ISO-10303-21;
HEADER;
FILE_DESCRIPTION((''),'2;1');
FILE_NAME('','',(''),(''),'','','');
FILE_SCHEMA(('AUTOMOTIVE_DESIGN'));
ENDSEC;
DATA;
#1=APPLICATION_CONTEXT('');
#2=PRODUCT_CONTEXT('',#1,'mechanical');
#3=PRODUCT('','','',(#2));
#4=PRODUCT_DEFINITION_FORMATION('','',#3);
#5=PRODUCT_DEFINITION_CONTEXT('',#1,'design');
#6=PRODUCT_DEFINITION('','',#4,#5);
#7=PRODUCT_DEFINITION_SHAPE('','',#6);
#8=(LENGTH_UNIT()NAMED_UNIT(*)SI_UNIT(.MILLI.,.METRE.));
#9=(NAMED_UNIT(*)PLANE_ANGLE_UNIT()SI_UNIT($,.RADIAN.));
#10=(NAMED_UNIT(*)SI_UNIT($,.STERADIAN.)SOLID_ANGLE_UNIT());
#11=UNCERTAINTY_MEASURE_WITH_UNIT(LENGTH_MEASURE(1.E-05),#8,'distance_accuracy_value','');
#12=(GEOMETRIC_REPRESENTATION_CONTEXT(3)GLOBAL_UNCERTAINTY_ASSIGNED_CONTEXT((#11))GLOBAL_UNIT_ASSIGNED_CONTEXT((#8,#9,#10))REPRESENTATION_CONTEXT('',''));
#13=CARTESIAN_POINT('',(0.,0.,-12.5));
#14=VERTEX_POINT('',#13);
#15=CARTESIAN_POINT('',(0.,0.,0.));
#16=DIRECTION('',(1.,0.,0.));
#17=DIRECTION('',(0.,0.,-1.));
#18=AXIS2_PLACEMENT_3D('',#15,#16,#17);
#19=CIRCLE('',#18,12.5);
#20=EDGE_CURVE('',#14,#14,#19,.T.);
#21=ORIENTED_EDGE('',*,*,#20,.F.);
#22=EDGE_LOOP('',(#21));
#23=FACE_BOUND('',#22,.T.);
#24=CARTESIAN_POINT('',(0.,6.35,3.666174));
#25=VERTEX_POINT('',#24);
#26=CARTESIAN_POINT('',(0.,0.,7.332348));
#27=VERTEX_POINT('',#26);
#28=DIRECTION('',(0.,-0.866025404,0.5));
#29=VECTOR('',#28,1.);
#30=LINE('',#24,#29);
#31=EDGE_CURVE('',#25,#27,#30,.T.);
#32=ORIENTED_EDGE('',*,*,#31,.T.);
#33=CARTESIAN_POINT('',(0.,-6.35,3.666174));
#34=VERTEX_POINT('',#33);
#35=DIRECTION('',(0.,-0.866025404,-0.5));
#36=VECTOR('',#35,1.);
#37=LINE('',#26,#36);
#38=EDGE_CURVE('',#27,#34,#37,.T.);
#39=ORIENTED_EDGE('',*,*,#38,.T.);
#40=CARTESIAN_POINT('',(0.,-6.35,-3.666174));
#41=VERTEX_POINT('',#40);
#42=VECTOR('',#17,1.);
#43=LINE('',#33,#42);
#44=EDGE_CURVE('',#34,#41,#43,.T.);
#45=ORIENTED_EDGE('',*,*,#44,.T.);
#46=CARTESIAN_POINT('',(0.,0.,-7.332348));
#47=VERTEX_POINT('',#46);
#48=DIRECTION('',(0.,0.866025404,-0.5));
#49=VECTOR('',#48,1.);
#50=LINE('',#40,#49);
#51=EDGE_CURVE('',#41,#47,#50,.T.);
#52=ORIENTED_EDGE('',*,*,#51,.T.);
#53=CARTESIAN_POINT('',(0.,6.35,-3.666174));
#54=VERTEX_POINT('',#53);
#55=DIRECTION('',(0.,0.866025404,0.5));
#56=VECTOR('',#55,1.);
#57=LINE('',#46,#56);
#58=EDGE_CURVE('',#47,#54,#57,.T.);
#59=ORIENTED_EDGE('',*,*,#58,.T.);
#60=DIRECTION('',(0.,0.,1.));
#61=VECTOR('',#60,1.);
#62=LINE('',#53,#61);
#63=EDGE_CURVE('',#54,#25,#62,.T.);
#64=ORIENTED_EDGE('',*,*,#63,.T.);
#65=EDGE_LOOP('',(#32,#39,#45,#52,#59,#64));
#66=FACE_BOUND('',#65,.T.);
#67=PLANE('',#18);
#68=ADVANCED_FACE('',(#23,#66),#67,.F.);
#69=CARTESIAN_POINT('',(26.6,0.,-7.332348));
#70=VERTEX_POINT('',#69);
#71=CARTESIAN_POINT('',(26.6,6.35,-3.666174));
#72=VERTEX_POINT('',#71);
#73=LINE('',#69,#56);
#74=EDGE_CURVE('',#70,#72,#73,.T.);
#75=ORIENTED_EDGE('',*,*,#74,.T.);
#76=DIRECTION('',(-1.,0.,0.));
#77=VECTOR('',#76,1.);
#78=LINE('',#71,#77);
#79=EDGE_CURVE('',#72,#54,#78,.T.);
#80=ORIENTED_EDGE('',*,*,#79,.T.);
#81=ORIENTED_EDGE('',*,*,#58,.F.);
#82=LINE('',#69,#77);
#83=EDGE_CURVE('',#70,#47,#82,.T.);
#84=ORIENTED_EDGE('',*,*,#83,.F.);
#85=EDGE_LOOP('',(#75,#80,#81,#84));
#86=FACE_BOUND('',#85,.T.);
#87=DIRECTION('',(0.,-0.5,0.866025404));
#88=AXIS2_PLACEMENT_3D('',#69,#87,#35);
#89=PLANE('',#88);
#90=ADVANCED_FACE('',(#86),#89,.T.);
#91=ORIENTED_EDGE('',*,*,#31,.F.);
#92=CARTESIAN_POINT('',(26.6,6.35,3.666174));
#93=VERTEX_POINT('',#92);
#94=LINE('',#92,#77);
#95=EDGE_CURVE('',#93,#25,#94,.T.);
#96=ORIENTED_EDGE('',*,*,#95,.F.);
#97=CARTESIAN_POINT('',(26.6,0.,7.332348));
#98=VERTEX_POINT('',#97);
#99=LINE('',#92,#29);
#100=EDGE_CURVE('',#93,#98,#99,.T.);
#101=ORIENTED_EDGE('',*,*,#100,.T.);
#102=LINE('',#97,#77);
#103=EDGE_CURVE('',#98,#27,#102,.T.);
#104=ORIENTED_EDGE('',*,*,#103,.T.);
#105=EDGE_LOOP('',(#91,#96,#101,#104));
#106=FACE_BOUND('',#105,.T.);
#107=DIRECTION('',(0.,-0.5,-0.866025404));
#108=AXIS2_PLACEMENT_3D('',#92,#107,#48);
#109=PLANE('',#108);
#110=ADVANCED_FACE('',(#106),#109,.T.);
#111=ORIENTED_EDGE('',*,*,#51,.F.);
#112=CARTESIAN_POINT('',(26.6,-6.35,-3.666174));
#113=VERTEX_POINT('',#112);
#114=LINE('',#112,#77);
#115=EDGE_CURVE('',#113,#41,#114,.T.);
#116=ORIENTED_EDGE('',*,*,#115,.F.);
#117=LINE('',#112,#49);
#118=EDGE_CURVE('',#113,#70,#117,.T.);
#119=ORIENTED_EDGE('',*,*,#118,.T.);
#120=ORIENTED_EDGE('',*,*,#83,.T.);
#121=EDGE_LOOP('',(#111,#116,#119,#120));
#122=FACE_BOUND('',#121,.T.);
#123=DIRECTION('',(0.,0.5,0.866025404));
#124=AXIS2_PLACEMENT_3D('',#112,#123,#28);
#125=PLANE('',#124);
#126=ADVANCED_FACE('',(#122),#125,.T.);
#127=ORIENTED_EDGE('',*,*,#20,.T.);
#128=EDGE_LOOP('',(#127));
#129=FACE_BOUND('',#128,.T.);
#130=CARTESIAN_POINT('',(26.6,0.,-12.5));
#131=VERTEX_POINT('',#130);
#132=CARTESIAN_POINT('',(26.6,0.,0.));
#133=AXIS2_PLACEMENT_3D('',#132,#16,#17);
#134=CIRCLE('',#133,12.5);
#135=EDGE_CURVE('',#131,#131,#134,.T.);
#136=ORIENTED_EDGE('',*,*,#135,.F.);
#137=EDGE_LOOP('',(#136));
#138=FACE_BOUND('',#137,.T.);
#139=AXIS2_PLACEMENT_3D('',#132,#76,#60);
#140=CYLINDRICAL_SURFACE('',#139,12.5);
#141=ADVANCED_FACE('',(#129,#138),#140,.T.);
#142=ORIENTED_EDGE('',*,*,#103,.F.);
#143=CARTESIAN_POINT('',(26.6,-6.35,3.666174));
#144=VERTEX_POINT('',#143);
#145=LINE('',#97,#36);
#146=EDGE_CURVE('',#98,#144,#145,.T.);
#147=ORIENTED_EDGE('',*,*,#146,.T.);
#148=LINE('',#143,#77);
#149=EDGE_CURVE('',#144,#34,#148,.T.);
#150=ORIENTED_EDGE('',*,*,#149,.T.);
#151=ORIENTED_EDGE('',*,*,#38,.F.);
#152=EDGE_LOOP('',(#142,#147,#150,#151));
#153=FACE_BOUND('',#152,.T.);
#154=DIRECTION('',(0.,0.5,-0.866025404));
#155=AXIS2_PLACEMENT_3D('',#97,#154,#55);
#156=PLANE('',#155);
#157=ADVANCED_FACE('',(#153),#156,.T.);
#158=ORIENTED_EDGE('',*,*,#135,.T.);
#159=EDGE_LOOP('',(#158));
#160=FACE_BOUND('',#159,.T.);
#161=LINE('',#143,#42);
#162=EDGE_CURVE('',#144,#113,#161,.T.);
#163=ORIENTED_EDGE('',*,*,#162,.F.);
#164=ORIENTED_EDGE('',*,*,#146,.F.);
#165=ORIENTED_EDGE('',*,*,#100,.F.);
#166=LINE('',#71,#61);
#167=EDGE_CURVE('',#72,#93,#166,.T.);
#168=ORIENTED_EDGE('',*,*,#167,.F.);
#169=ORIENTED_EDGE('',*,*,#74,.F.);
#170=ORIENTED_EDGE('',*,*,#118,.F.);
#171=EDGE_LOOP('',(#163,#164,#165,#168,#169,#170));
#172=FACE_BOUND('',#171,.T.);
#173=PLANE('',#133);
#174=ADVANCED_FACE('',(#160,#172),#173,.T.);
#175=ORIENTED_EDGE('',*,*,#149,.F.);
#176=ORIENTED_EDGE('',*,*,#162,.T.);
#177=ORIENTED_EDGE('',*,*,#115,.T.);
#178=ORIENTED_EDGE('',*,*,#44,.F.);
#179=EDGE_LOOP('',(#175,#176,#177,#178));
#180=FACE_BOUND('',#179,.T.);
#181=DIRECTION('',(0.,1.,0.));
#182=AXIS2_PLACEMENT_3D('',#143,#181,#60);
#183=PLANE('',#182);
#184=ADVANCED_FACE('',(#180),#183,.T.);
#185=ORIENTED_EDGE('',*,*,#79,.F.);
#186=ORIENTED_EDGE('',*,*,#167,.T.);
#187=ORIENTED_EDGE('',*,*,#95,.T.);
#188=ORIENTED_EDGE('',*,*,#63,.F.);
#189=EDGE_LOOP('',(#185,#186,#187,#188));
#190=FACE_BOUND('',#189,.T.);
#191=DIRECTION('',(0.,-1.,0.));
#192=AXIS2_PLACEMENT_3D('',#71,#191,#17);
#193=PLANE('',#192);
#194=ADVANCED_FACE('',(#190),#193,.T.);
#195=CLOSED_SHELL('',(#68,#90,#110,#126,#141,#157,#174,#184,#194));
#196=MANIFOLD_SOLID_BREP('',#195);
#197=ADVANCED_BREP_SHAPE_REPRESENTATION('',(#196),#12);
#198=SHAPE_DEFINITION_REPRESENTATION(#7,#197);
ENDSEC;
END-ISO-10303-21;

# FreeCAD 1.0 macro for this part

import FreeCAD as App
import Part
import Sketcher
Q = App.Units.Quantity

doc = App.newDocument("Part")
body = doc.addObject("PartDesign::Body", "Body")

sketch1 = doc.addObject("Sketcher::SketchObject", "Sketch")
body.addObject(sketch1)
sketch1.AttachmentSupport = (doc.YZ_Plane, [""])
sketch1.MapMode = "FlatFace"
sketch1.addGeometry(Part.Circle(App.Vector(0, 0, 0), App.Vector(0, 0, 1), 12.5), False)
sketch1.addGeometry(Part.LineSegment(App.Vector(6.35, -3.666174, 0), App.Vector(0, -7.332348, 0)), False)
sketch1.addGeometry(Part.LineSegment(App.Vector(0, -7.332348, 0), App.Vector(-6.35, -3.666174, 0)), False)
sketch1.addGeometry(Part.LineSegment(App.Vector(-6.35, -3.666174, 0), App.Vector(-6.35, 3.666174, 0)), False)
sketch1.addGeometry(Part.LineSegment(App.Vector(-6.35, 3.666174, 0), App.Vector(0, 7.332348, 0)), False)
sketch1.addGeometry(Part.LineSegment(App.Vector(0, 7.332348, 0), App.Vector(6.35, 3.666174, 0)), False)
sketch1.addGeometry(Part.LineSegment(App.Vector(6.35, 3.666174, 0), App.Vector(6.35, -3.666174, 0)), False)
sketch1.addConstraint(Sketcher.Constraint("Coincident", 1, 2, 2, 1))
sketch1.addConstraint(Sketcher.Constraint("Coincident", 2, 2, 3, 1))
sketch1.addConstraint(Sketcher.Constraint("Coincident", 3, 2, 4, 1))
sketch1.addConstraint(Sketcher.Constraint("Coincident", 4, 2, 5, 1))
sketch1.addConstraint(Sketcher.Constraint("Coincident", 5, 2, 6, 1))
sketch1.addConstraint(Sketcher.Constraint("Coincident", 6, 2, 1, 1))
sketch1.addConstraint(Sketcher.Constraint("Vertical", 3))
sketch1.addConstraint(Sketcher.Constraint("Vertical", 6))
sketch1.addConstraint(Sketcher.Constraint("Coincident", 0, 3, -1, 1))
sketch1.addConstraint(Sketcher.Constraint("Symmetric", 1, 2, 4, 2, -1, 1))
sketch1.addConstraint(Sketcher.Constraint("Symmetric", 2, 2, 5, 2, -1, 1))
sketch1.addConstraint(Sketcher.Constraint("PointOnObject", 1, 2, -2))
sketch1.addConstraint(Sketcher.Constraint("Parallel", 1, 4))
sketch1.addConstraint(Sketcher.Constraint("Horizontal", 3, 2, 5, 2))
sketch1.addConstraint(Sketcher.Constraint("Diameter", 0, 25.0))
sketch1.addConstraint(Sketcher.Constraint("Angle", 1, Q("-150 deg")))
sketch1.addConstraint(Sketcher.Constraint("DistanceX", 3, 2, 5, 2, 12.7))
sketch1.addConstraint(Sketcher.Constraint("DistanceY", 3, 1, 3, 2, 7.332348))
pad1 = doc.addObject("PartDesign::Pad", "Pad")
body.addObject(pad1)
pad1.Profile = sketch1
pad1.Length = 26.6

doc.recompute()
